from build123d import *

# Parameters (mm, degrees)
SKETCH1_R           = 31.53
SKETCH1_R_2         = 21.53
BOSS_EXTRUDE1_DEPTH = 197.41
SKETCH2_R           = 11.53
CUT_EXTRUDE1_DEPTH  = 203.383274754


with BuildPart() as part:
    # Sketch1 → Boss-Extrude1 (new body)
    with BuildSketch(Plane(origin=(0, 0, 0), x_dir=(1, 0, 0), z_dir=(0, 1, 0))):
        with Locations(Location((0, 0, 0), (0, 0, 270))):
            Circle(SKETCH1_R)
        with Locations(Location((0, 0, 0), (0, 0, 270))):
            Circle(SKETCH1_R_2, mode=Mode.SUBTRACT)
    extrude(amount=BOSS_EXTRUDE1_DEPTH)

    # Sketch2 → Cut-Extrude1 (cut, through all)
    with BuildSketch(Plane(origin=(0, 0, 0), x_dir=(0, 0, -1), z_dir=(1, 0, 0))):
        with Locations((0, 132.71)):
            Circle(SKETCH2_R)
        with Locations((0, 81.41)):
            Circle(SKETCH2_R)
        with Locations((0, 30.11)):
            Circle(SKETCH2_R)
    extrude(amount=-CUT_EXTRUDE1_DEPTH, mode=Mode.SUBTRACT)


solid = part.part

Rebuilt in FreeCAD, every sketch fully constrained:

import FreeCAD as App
import Part
import Sketcher

V = App.Vector
Q = App.Units.Quantity

doc = App.newDocument("Part")
body = doc.addObject("PartDesign::Body", "Body")

sketch1 = doc.addObject("Sketcher::SketchObject", "Sketch")
body.addObject(sketch1)
sketch1.AttachmentSupport = (doc.XZ_Plane, [""])
sketch1.MapMode = "FlatFace"
sketch1.addGeometry([
    Part.Circle(V(0, 0, 0), V(0, 0, 1), 32),
    Part.Circle(V(0, 0, 0), V(0, 0, 1), 22),
], False)
sketch1.addConstraint([
    Sketcher.Constraint("Coincident", 0, 3, -1, 1),
    Sketcher.Constraint("Coincident", 1, 3, -1, 1),
    Sketcher.Constraint("Diameter", 0, Q("63.06 mm")),
    Sketcher.Constraint("Diameter", 1, Q("43.06 mm")),
])
pad1 = doc.addObject("PartDesign::Pad", "Pad")
body.addObject(pad1)
pad1.Profile = sketch1
pad1.Length = 197.41
pad1.Reversed = True

sketch2 = doc.addObject("Sketcher::SketchObject", "Sketch001")
body.addObject(sketch2)
sketch2.AttachmentSupport = (doc.YZ_Plane, [""])
sketch2.MapMode = "FlatFace"
sketch2.addGeometry([
    Part.Circle(V(133, 0, 0), V(0, 0, 1), 12),
    Part.Circle(V(81, 0, 0), V(0, 0, 1), 12),
    Part.Circle(V(30, 0, 0), V(0, 0, 1), 12),
], False)
sketch2.addConstraint([
    Sketcher.Constraint("Equal", 0, 1),
    Sketcher.Constraint("Equal", 1, 2),
    Sketcher.Constraint("PointOnObject", 0, 3, -1),
    Sketcher.Constraint("PointOnObject", 1, 3, -1),
    Sketcher.Constraint("PointOnObject", 2, 3, -1),
    Sketcher.Constraint("Diameter", 0, Q("23.06 mm")),
    Sketcher.Constraint("DistanceX", 1, 3, 0, 3, Q("51.3 mm")),
    Sketcher.Constraint("DistanceX", 2, 3, 1, 3, Q("51.3 mm")),
    Sketcher.Constraint("DistanceX", -1, 1, 0, 3, Q("132.71 mm")),
])
pocket1 = doc.addObject("PartDesign::Pocket", "Pocket")
body.addObject(pocket1)
pocket1.Profile = sketch2
pocket1.Type = "ThroughAll"

doc.recompute()
